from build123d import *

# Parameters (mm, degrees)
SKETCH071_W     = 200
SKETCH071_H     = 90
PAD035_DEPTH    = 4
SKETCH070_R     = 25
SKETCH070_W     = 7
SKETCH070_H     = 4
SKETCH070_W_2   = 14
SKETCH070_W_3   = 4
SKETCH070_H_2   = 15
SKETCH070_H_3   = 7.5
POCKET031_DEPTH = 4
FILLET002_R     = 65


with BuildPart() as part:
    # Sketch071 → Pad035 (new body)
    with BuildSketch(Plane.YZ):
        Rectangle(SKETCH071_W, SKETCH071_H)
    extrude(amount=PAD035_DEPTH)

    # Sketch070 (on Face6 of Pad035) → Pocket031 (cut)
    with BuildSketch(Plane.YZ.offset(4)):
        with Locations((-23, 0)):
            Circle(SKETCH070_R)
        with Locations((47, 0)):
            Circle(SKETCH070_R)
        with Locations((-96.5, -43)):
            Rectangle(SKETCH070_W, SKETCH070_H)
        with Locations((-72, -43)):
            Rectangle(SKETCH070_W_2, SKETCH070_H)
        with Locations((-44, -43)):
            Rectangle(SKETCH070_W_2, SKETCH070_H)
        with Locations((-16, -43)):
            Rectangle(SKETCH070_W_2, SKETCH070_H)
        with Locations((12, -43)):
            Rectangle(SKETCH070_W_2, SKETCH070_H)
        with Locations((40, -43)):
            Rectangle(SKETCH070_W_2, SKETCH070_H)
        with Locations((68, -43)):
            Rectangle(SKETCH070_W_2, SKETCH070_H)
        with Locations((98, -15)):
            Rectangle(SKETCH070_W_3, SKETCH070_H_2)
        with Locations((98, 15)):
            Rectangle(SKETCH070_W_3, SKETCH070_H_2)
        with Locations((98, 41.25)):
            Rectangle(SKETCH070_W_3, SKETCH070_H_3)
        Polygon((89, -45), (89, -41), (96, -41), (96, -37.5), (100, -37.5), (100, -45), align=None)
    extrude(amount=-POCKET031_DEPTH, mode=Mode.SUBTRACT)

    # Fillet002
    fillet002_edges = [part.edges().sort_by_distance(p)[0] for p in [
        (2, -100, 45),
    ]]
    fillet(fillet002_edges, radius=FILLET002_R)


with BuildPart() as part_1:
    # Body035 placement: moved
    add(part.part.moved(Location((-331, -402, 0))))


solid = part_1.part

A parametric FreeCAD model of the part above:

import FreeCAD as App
import Part
import Sketcher
Q = App.Units.Quantity


def edges_at(feature, points):
    """Names of the edges that pass closest to the given points."""
    edges = feature.Shape.Edges
    near = lambda p: min(range(len(edges)), key=lambda i: edges[i].distToShape(Part.Vertex(*p))[0])
    return sorted({f"Edge{near(p) + 1}" for p in points})


def add_polygon(sketch, points):
    """Adds a closed chain of lines whose ends are joined by coincident constraints."""
    first, n = sketch.GeometryCount, len(points)
    for a, b in zip(points, points[1:] + points[:1]):
        sketch.addGeometry(Part.LineSegment(App.Vector(*a, 0), App.Vector(*b, 0)), False)
    for i in range(n):
        sketch.addConstraint(Sketcher.Constraint("Coincident", first + i, 2, first + (i + 1) % n, 1))

doc = App.newDocument("Part")
body = doc.addObject("PartDesign::Body", "Body")

# Sketch on YZ plane
sketch1 = body.newObject("Sketcher::SketchObject", "Sketch")
sketch1.AttachmentSupport = (doc.getObject("YZ_Plane"), [""])
sketch1.MapMode = "FlatFace"
add_polygon(sketch1, [(-100, 45), (-100, -45), (100, -45), (100, 45)])  # lines 0-3
sketch1.addConstraint([
    Sketcher.Constraint("Vertical", 0),
    Sketcher.Constraint("Horizontal", 1),
    Sketcher.Constraint("Vertical", 2),
    Sketcher.Constraint("Horizontal", 3),
    Sketcher.Constraint("Symmetric", 0, 2, 2, 2, -1, 1),
    Sketcher.Constraint("DistanceX", 1, 1, 1, 2, Q("200 mm")),
    Sketcher.Constraint("DistanceY", 0, 2, 0, 1, Q("90 mm")),
])
pad1 = body.newObject("PartDesign::Pad", "Pad")
pad1.Profile = sketch1
pad1.Length = 4

# Sketch on YZ plane
sketch2 = body.newObject("Sketcher::SketchObject", "Sketch001")
sketch2.AttachmentSupport = (doc.getObject("YZ_Plane"), [""])
sketch2.MapMode = "FlatFace"
sketch2.AttachmentOffset = App.Placement(App.Vector(0, 0, 4), App.Rotation())
sketch2.addGeometry(Part.Circle(App.Vector(-23, 0, 0), App.Vector(0, 0, 1), 25), False)  # 0
sketch2.addGeometry(Part.Circle(App.Vector(47, 0, 0), App.Vector(0, 0, 1), 25), False)  # 1
add_polygon(sketch2, [(-100, -41), (-100, -45), (-93, -45), (-93, -41)])  # lines 2-5
add_polygon(sketch2, [(-79, -41), (-79, -45), (-65, -45), (-65, -41)])  # lines 6-9
add_polygon(sketch2, [(-51, -41), (-51, -45), (-37, -45), (-37, -41)])  # lines 10-13
add_polygon(sketch2, [(-23, -41), (-23, -45), (-9, -45), (-9, -41)])  # lines 14-17
add_polygon(sketch2, [(5, -41), (5, -45), (19, -45), (19, -41)])  # lines 18-21
add_polygon(sketch2, [(33, -41), (33, -45), (47, -45), (47, -41)])  # lines 22-25
add_polygon(sketch2, [(61, -41), (61, -45), (75, -45), (75, -41)])  # lines 26-29
add_polygon(sketch2, [(96, -7.5), (96, -22.5), (100, -22.5), (100, -7.5)])  # lines 30-33
add_polygon(sketch2, [(96, 22.5), (96, 7.5), (100, 7.5), (100, 22.5)])  # lines 34-37
add_polygon(sketch2, [(96, 45), (96, 37.5), (100, 37.5), (100, 45)])  # lines 38-41
add_polygon(sketch2, [(89, -41), (89, -45), (100, -45), (100, -37.5), (96, -37.5), (96, -41)])  # lines 42-47
sketch2.addConstraint([
    Sketcher.Constraint("Vertical", 2),
    Sketcher.Constraint("Horizontal", 3),
    Sketcher.Constraint("Vertical", 4),
    Sketcher.Constraint("Horizontal", 5),
    Sketcher.Constraint("Vertical", 6),
    Sketcher.Constraint("Horizontal", 7),
    Sketcher.Constraint("Vertical", 8),
    Sketcher.Constraint("Horizontal", 9),
    Sketcher.Constraint("Vertical", 10),
    Sketcher.Constraint("Horizontal", 11),
    Sketcher.Constraint("Vertical", 12),
    Sketcher.Constraint("Horizontal", 13),
    Sketcher.Constraint("Vertical", 14),
    Sketcher.Constraint("Horizontal", 15),
    Sketcher.Constraint("Vertical", 16),
    Sketcher.Constraint("Horizontal", 17),
    Sketcher.Constraint("Vertical", 18),
    Sketcher.Constraint("Horizontal", 19),
    Sketcher.Constraint("Vertical", 20),
    Sketcher.Constraint("Horizontal", 21),
    Sketcher.Constraint("Vertical", 22),
    Sketcher.Constraint("Horizontal", 23),
    Sketcher.Constraint("Vertical", 24),
    Sketcher.Constraint("Horizontal", 25),
    Sketcher.Constraint("Vertical", 26),
    Sketcher.Constraint("Horizontal", 27),
    Sketcher.Constraint("Vertical", 28),
    Sketcher.Constraint("Horizontal", 29),
    Sketcher.Constraint("Vertical", 30),
    Sketcher.Constraint("Horizontal", 31),
    Sketcher.Constraint("Vertical", 32),
    Sketcher.Constraint("Horizontal", 33),
    Sketcher.Constraint("Vertical", 34),
    Sketcher.Constraint("Horizontal", 35),
    Sketcher.Constraint("Vertical", 36),
    Sketcher.Constraint("Horizontal", 37),
    Sketcher.Constraint("Vertical", 38),
    Sketcher.Constraint("Horizontal", 39),
    Sketcher.Constraint("Vertical", 40),
    Sketcher.Constraint("Horizontal", 41),
    Sketcher.Constraint("Vertical", 42),
    Sketcher.Constraint("Horizontal", 43),
    Sketcher.Constraint("Vertical", 44),
    Sketcher.Constraint("Horizontal", 45),
    Sketcher.Constraint("Vertical", 46),
    Sketcher.Constraint("Horizontal", 47),
    Sketcher.Constraint("Equal", 0, 1),
    Sketcher.Constraint("Symmetric", 2, 2, 40, 2, -1, 1),
    Sketcher.Constraint("Symmetric", 2, 2, 43, 2, -2),
    Sketcher.Constraint("Symmetric", 33, 2, 34, 2, -1),
    Sketcher.Constraint("Symmetric", 31, 2, 36, 2, -1),
    Sketcher.Constraint("Symmetric", 38, 2, 45, 2, -1),
    Sketcher.Constraint("PointOnObject", 0, 3, -1),
    Sketcher.Constraint("PointOnObject", 1, 3, -1),
    Sketcher.Constraint("Horizontal", 3, 2, 6, 2),
    Sketcher.Constraint("Horizontal", 5, 2, 8, 2),
    Sketcher.Constraint("Horizontal", 7, 2, 10, 2),
    Sketcher.Constraint("Horizontal", 9, 2, 12, 2),
    Sketcher.Constraint("Horizontal", 11, 2, 14, 2),
    Sketcher.Constraint("Horizontal", 13, 2, 16, 2),
    Sketcher.Constraint("Horizontal", 15, 2, 18, 2),
    Sketcher.Constraint("Horizontal", 17, 2, 20, 2),
    Sketcher.Constraint("Horizontal", 19, 2, 22, 2),
    Sketcher.Constraint("Horizontal", 21, 2, 24, 2),
    Sketcher.Constraint("Horizontal", 23, 2, 26, 2),
    Sketcher.Constraint("Horizontal", 25, 2, 28, 2),
    Sketcher.Constraint("Horizontal", 29, 2, 46, 2),
    Sketcher.Constraint("Vertical", 0, 3, 14, 2),
    Sketcher.Constraint("Vertical", 1, 3, 23, 2),
    Sketcher.Constraint("Vertical", 37, 2, 38, 2),
    Sketcher.Constraint("Vertical", 36, 2, 39, 2),
    Sketcher.Constraint("Equal", 9, 11),
    Sketcher.Constraint("Equal", 13, 15),
    Sketcher.Constraint("Equal", 17, 19),
    Sketcher.Constraint("Equal", 21, 23),
    Sketcher.Constraint("Equal", 25, 27),
    Sketcher.Constraint("Equal", 5, 47),
    Sketcher.Constraint("Equal", 45, 2),
    Sketcher.Constraint("Diameter", 0, Q("50 mm")),
    Sketcher.Constraint("DistanceX", 3, 1, 3, 2, Q("7 mm")),
    Sketcher.Constraint("DistanceX", 7, 1, 7, 2, Q("14 mm")),
    Sketcher.Constraint("DistanceX", 31, 1, 31, 2, Q("4 mm")),
    Sketcher.Constraint("DistanceY", 30, 2, 30, 1, Q("15 mm")),
    Sketcher.Constraint("DistanceY", 38, 2, 38, 1, Q("7.5 mm")),
    Sketcher.Constraint("DistanceX", 0, 3, -1, 1, Q("23 mm")),
    Sketcher.Constraint("DistanceX", -1, 1, 1, 3, Q("47 mm")),
    Sketcher.Constraint("DistanceX", 2, 2, -1, 1, Q("100 mm")),
    Sketcher.Constraint("DistanceY", 2, 2, -1, 1, Q("45 mm")),
    Sketcher.Constraint("DistanceX", 6, 2, -1, 1, Q("79 mm")),
    Sketcher.Constraint("DistanceX", 10, 2, -1, 1, Q("51 mm")),
    Sketcher.Constraint("DistanceX", -1, 1, 18, 2, Q("5 mm")),
    Sketcher.Constraint("DistanceX", -1, 1, 26, 2, Q("61 mm")),
    Sketcher.Constraint("DistanceY", 33, 2, 34, 2, Q("15 mm")),
])
pocket1 = body.newObject("PartDesign::Pocket", "Pocket")
pocket1.Profile = sketch2
pocket1.Length = 4
doc.recompute()

fillet = body.newObject("PartDesign::Fillet", "Fillet")
fillet.Base = (pocket1, edges_at(pocket1, [(2, -100, 45)]))
fillet.Radius = 65
body2 = doc.addObject("PartDesign::Body", "Body001")
doc.recompute()

body.Placement = App.Placement(App.Vector(-331, -402, 0), App.Rotation(App.Vector(0, 0, 1), 0))
boolean = body2.newObject("PartDesign::Boolean", "Boolean")
boolean.Type = "Fuse"
boolean.addObjects([body])

doc.recompute()
